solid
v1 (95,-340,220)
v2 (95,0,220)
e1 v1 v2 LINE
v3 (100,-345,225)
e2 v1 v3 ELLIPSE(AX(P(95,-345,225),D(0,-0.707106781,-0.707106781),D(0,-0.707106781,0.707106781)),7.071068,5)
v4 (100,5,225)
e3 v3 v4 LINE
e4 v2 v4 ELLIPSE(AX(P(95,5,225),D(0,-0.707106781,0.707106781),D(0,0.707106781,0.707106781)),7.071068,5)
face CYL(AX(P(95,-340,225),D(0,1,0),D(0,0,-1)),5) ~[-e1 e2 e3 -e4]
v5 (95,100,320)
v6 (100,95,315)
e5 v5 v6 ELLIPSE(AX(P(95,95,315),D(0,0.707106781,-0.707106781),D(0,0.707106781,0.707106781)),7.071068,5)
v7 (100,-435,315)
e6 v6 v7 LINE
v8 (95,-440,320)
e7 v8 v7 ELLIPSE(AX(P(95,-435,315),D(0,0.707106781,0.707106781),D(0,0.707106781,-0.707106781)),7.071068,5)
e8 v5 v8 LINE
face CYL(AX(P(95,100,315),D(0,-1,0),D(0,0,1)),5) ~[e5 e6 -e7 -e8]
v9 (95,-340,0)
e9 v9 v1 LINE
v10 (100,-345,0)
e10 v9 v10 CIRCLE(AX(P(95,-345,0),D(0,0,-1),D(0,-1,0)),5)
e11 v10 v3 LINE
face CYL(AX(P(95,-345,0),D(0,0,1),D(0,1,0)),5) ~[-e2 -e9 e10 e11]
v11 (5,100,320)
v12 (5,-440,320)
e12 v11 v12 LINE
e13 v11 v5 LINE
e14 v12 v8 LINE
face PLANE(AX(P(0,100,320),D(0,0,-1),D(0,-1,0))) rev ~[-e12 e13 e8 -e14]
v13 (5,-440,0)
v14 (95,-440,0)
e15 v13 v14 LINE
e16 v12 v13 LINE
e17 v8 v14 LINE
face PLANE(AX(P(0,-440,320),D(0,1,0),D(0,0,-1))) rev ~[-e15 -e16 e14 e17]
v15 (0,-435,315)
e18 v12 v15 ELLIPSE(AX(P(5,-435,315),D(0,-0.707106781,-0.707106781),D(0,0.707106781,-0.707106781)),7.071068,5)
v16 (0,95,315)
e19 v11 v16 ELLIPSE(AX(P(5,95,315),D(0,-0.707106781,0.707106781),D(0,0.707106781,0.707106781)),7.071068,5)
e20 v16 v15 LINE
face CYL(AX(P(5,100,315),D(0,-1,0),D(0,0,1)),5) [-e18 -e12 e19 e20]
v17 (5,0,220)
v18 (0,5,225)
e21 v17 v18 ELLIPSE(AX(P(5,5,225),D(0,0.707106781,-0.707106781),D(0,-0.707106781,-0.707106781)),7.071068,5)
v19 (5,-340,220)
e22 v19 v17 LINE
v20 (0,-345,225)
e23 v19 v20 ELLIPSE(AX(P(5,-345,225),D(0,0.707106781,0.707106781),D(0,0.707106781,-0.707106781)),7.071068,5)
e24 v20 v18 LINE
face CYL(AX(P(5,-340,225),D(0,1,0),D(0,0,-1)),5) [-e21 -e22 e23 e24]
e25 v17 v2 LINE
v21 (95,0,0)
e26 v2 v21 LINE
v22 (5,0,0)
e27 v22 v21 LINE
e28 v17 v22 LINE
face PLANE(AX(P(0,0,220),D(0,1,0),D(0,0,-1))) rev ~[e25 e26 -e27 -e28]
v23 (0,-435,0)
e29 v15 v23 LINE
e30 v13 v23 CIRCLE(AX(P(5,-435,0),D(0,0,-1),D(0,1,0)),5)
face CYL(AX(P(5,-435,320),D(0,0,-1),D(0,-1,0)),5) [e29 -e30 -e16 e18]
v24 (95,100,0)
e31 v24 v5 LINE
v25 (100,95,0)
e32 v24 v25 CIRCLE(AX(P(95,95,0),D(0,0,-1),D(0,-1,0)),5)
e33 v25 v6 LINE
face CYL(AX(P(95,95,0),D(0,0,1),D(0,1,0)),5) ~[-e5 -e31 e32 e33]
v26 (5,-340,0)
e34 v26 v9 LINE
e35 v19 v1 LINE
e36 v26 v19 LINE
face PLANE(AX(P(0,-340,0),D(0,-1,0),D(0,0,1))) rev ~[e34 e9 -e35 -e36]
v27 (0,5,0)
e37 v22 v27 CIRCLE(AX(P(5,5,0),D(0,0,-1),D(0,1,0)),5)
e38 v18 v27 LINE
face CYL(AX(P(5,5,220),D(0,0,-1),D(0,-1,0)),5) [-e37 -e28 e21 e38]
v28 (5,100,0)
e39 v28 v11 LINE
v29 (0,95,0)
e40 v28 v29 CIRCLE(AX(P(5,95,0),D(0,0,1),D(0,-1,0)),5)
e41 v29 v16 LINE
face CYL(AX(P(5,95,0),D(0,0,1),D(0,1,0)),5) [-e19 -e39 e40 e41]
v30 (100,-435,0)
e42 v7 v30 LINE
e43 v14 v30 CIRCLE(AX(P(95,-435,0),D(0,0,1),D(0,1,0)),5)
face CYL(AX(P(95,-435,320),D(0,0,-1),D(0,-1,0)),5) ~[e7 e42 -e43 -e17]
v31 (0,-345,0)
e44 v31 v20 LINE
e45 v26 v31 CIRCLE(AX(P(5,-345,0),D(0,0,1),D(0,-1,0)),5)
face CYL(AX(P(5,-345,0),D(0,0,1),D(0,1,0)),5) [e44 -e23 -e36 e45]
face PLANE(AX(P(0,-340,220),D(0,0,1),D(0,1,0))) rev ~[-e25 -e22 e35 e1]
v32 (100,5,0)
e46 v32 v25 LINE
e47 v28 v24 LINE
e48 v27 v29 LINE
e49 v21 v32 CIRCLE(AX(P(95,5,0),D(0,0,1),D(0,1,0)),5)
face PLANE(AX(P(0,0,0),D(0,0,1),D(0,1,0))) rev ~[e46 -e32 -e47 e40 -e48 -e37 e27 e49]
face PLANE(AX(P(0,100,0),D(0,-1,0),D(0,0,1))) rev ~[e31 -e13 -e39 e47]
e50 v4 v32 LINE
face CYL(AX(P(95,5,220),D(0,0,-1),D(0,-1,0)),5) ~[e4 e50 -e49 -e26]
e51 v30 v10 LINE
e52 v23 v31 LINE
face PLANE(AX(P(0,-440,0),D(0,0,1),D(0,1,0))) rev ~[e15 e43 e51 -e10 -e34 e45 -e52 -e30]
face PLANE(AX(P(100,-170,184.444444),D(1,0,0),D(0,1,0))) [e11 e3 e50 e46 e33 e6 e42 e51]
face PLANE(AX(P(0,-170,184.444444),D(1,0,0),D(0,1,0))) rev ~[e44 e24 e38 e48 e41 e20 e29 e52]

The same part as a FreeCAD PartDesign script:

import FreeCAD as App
import Part
import Sketcher

V = App.Vector


def edges_at(feature, points):
    """Names of the edges that pass closest to the given points."""
    edges = feature.Shape.Edges
    near = lambda p: min(range(len(edges)), key=lambda i: edges[i].distToShape(Part.Vertex(*p))[0])
    return sorted({f"Edge{near(p) + 1}" for p in points})


def add_polygon(sketch, points):
    """Adds a closed chain of lines whose ends are joined by coincident constraints."""
    first, n = sketch.GeometryCount, len(points)
    for a, b in zip(points, points[1:] + points[:1]):
        sketch.addGeometry(Part.LineSegment(App.Vector(*a, 0), App.Vector(*b, 0)), False)
    for i in range(n):
        sketch.addConstraint(Sketcher.Constraint("Coincident", first + i, 2, first + (i + 1) % n, 1))

doc = App.newDocument("Part")
body = doc.addObject("PartDesign::Body", "Body")

# Sketch on YZ plane
sketch1 = body.newObject("Sketcher::SketchObject", "Sketch")
sketch1.AttachmentSupport = (doc.getObject("YZ_Plane"), [""])
sketch1.MapMode = "FlatFace"
add_polygon(sketch1, [(0, 220), (0, 0), (100, 0), (100, 320), (-440, 320), (-440, 0), (-340, 0), (-340, 220)])  # lines 0-7
sketch1.addConstraint(Sketcher.Constraint("Vertical", 0))
sketch1.addConstraint(Sketcher.Constraint("Horizontal", 1))
sketch1.addConstraint(Sketcher.Constraint("Vertical", 2))
sketch1.addConstraint(Sketcher.Constraint("Horizontal", 3))
sketch1.addConstraint(Sketcher.Constraint("Vertical", 4))
sketch1.addConstraint(Sketcher.Constraint("Horizontal", 5))
sketch1.addConstraint(Sketcher.Constraint("Vertical", 6))
sketch1.addConstraint(Sketcher.Constraint("Horizontal", 7))
sketch1.addConstraint(Sketcher.Constraint("Coincident", 0, 2, -1, 1))
sketch1.addConstraint(Sketcher.Constraint("PointOnObject", 4, 2, -1))
sketch1.addConstraint(Sketcher.Constraint("Equal", 1, 5))
sketch1.addConstraint(Sketcher.Constraint("DistanceX", 1, 1, 1, 2, 100.0))
sketch1.addConstraint(Sketcher.Constraint("DistanceX", 3, 2, 3, 1, 540.0))
sketch1.addConstraint(Sketcher.Constraint("DistanceY", 0, 2, 0, 1, 220.0))
sketch1.addConstraint(Sketcher.Constraint("DistanceY", 2, 1, 2, 2, 320.0))
pad1 = body.newObject("PartDesign::Pad", "Pad")
pad1.Profile = sketch1
pad1.Length = 100
doc.recompute()

fillet = body.newObject("PartDesign::Fillet", "Fillet")
fillet.Base = (pad1, edges_at(pad1, [
    (100, -440, 160),
    (100, -340, 110),
    (100, -170, 220),
    (100, 0, 110),
    (100, 100, 160),
    (0, -440, 160),
    (0, 0, 110),
    (0, -170, 220),
    (0, -340, 110),
    (0, 100, 160),
    (0, -170, 320),
    (100, -170, 320),
]))
fillet.Radius = 5

doc.recompute()
